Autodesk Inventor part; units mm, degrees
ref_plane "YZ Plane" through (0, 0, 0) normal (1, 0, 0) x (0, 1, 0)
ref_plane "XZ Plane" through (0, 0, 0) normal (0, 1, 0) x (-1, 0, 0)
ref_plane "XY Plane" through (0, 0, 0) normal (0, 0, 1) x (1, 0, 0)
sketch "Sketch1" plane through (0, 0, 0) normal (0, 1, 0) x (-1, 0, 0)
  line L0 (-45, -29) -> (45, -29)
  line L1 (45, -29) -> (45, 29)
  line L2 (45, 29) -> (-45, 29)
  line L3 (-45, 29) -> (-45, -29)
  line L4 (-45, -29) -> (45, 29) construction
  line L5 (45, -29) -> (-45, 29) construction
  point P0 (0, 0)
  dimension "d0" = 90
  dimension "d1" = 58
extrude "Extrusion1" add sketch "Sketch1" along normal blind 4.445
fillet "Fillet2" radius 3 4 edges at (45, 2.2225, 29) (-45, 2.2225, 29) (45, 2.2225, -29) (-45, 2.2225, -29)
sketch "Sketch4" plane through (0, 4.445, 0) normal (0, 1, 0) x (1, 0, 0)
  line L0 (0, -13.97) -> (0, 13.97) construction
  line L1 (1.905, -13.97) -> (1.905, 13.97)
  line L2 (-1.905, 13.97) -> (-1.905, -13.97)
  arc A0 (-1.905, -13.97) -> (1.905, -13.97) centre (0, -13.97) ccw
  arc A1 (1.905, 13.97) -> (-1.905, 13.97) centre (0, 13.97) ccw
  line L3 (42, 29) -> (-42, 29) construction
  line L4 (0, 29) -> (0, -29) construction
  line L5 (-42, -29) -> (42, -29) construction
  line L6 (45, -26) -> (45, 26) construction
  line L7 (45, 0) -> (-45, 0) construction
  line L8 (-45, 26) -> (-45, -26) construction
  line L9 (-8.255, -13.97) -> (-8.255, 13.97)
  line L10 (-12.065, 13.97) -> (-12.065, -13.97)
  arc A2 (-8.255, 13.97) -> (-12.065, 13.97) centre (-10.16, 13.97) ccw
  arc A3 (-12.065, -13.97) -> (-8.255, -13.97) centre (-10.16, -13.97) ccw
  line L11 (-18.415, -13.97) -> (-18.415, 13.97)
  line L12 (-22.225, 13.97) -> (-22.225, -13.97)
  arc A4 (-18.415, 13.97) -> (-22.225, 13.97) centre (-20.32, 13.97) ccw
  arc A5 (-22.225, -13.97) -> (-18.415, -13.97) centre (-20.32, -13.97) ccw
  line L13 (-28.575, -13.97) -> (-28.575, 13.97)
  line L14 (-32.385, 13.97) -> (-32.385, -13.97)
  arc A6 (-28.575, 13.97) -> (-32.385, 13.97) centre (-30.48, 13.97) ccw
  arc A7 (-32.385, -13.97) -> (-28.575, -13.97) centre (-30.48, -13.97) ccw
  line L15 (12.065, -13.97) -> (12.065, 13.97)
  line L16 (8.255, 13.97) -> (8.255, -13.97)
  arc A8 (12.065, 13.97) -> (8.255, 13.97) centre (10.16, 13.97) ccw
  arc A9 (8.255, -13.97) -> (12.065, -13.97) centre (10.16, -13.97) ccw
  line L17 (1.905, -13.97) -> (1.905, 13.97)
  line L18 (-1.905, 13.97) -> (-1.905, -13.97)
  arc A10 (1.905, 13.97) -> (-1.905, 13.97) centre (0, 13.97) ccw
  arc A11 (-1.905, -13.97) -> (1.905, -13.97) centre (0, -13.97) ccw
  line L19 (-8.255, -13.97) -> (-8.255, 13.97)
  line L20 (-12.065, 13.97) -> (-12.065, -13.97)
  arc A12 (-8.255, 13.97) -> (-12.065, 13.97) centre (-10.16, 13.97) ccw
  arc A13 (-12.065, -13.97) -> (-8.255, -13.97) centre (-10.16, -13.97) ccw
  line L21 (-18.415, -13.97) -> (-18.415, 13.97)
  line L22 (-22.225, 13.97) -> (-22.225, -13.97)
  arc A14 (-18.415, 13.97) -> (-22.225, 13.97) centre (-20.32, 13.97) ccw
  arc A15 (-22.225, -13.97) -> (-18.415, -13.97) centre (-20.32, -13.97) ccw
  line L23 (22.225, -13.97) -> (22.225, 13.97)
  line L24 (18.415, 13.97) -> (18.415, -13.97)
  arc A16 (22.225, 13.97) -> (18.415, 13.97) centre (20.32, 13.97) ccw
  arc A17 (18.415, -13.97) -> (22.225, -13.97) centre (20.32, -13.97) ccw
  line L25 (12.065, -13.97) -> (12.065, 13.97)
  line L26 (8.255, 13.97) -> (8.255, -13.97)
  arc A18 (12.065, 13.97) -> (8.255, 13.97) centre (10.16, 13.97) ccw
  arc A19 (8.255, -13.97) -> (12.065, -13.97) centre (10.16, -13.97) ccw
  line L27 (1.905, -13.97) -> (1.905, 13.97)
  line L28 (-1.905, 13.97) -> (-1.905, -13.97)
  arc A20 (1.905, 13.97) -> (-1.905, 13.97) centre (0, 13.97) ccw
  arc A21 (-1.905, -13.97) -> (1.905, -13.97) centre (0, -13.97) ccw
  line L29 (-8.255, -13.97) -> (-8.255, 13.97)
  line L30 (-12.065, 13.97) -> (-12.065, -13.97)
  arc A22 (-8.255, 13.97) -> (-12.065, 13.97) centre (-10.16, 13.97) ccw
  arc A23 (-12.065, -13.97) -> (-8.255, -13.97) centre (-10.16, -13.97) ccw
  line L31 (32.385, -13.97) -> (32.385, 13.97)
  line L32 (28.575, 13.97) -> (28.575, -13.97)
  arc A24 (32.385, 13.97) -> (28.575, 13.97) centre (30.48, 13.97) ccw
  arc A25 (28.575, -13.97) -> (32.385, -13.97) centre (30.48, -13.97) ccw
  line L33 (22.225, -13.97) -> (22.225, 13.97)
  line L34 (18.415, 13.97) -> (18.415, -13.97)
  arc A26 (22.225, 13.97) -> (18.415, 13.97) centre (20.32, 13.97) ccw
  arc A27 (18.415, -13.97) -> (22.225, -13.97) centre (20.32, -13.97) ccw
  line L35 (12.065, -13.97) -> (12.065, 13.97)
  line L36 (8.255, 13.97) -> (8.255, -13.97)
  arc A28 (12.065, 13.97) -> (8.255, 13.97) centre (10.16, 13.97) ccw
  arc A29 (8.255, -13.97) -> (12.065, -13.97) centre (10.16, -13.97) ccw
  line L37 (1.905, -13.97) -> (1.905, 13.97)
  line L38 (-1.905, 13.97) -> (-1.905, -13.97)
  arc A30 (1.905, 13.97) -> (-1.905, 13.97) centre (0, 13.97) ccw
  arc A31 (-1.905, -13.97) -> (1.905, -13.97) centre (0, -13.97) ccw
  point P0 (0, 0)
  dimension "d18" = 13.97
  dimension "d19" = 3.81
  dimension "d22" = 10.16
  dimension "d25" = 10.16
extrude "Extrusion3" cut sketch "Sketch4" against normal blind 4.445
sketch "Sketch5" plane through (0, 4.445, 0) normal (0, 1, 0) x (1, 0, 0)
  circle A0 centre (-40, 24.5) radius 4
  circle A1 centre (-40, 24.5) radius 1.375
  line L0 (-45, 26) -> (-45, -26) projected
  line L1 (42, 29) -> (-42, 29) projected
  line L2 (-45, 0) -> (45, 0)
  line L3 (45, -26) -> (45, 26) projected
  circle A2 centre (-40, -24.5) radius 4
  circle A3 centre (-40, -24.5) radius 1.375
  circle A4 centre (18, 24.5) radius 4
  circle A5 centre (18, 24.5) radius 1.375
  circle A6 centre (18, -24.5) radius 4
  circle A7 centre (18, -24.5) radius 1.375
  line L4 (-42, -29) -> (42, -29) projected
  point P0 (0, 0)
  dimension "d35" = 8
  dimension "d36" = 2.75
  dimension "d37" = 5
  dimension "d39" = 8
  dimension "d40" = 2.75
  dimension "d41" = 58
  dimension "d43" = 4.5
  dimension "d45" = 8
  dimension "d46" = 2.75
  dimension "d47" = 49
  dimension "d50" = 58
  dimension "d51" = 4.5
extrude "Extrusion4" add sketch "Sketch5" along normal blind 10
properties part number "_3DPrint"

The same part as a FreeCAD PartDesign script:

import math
import FreeCAD as App
import Part
import Sketcher
from FreeCAD import Vector
Q = App.Units.Quantity


def edges_at(feature, points):
    """Names of the edges that pass closest to the given points."""
    edges = feature.Shape.Edges
    near = lambda p: min(range(len(edges)), key=lambda i: edges[i].distToShape(Part.Vertex(*p))[0])
    return sorted({f"Edge{near(p) + 1}" for p in points})


def add_polygon(sketch, points):
    """Adds a closed chain of lines whose ends are joined by coincident constraints."""
    first, n = sketch.GeometryCount, len(points)
    for a, b in zip(points, points[1:] + points[:1]):
        sketch.addGeometry(Part.LineSegment(App.Vector(*a, 0), App.Vector(*b, 0)), False)
    for i in range(n):
        sketch.addConstraint(Sketcher.Constraint("Coincident", first + i, 2, first + (i + 1) % n, 1))

doc = App.newDocument("Part")
params = doc.addObject("Spreadsheet::Sheet", "Params")
for row, (alias, value) in enumerate([
    ("pad1_length", "0.175 in"),
    ("fillet_radius", "0.1181102 in"),
    ("sketch2_radius", "0.075 in"),
    ("pocket1_length", "0.175 in"),
    ("pad2_length", "0.3937008 in"),
], start=1):
    params.set(f"A{row}", alias)
    params.set(f"B{row}", "=" + value)
    params.setAlias(f"B{row}", alias)

body = doc.addObject("PartDesign::Body", "Body")

# Sketch on XZ plane
sketch1 = doc.addObject("Sketcher::SketchObject", "Sketch")
body.addObject(sketch1)
sketch1.AttachmentSupport = (doc.XZ_Plane, [""])
sketch1.MapMode = "FlatFace"
add_polygon(sketch1, [(45, 29), (45, -29), (-45, -29), (-45, 29)])  # lines 0-3
sketch1.addConstraint([
    Sketcher.Constraint("Vertical", 0),
    Sketcher.Constraint("Horizontal", 1),
    Sketcher.Constraint("Vertical", 2),
    Sketcher.Constraint("Horizontal", 3),
    Sketcher.Constraint("Symmetric", 0, 2, 2, 2, -1, 1),
    Sketcher.Constraint("DistanceX", 1, 2, 1, 1, Q("3.5433 in")),
    Sketcher.Constraint("DistanceY", 0, 2, 0, 1, Q("58 mm")),
])
pad1 = doc.addObject("PartDesign::Pad", "Pad")
body.addObject(pad1)
pad1.Profile = sketch1
pad1.setExpression("Length", "Params.pad1_length")
pad1.Reversed = True
doc.recompute()

fillet = doc.addObject("PartDesign::Fillet", "Fillet")
body.addObject(fillet)
fillet.Base = (pad1, edges_at(pad1, [
    (45, 2.223, 29),
    (-45, 2.223, 29),
    (45, 2.223, -29),
    (-45, 2.223, -29),
]))
fillet.setExpression("Radius", "Params.fillet_radius")

# Sketch on XZ plane
sketch2 = doc.addObject("Sketcher::SketchObject", "Sketch001")
body.addObject(sketch2)
sketch2.AttachmentSupport = (doc.XZ_Plane, [""])
sketch2.MapMode = "FlatFace"
sketch2.AttachmentOffset = App.Placement(Vector(0, 0, -0.175 * 25.4), App.Rotation())
sketch2.addGeometry([
    Part.ArcOfCircle(Part.Circle(Vector(0, 14, 0), Vector(0, 0, 1), 1.9), math.radians(0), math.radians(180)),  # 0
    Part.LineSegment(Vector(1.9, 14, 0), Vector(1.9, -14, 0)),  # 1
    Part.ArcOfCircle(Part.Circle(Vector(0, -14, 0), Vector(0, 0, 1), 1.9), math.radians(180), math.radians(360)),  # 2
    Part.LineSegment(Vector(-1.9, -14, 0), Vector(-1.9, 14, 0)),  # 3
    Part.ArcOfCircle(Part.Circle(Vector(-10.2, 14, 0), Vector(0, 0, 1), 1.9), math.radians(0), math.radians(180)),  # 4
    Part.LineSegment(Vector(-8.3, 14, 0), Vector(-8.3, -14, 0)),  # 5
    Part.ArcOfCircle(Part.Circle(Vector(-10.2, -14, 0), Vector(0, 0, 1), 1.9), math.radians(180), math.radians(360)),  # 6
    Part.LineSegment(Vector(-12.1, -14, 0), Vector(-12.1, 14, 0)),  # 7
    Part.ArcOfCircle(Part.Circle(Vector(-20.3, 14, 0), Vector(0, 0, 1), 1.9), math.radians(0), math.radians(180)),  # 8
    Part.LineSegment(Vector(-18.4, 14, 0), Vector(-18.4, -14, 0)),  # 9
    Part.ArcOfCircle(Part.Circle(Vector(-20.3, -14, 0), Vector(0, 0, 1), 1.9), math.radians(180), math.radians(360)),  # 10
    Part.LineSegment(Vector(-22.2, -14, 0), Vector(-22.2, 14, 0)),  # 11
    Part.ArcOfCircle(Part.Circle(Vector(-30.5, 14, 0), Vector(0, 0, 1), 1.9), math.radians(0), math.radians(180)),  # 12
    Part.LineSegment(Vector(-28.6, 14, 0), Vector(-28.6, -14, 0)),  # 13
    Part.ArcOfCircle(Part.Circle(Vector(-30.5, -14, 0), Vector(0, 0, 1), 1.9), math.radians(180), math.radians(360)),  # 14
    Part.LineSegment(Vector(-32.4, -14, 0), Vector(-32.4, 14, 0)),  # 15
    Part.ArcOfCircle(Part.Circle(Vector(10.2, 14, 0), Vector(0, 0, 1), 1.9), math.radians(0), math.radians(180)),  # 16
    Part.LineSegment(Vector(12.1, 14, 0), Vector(12.1, -14, 0)),  # 17
    Part.ArcOfCircle(Part.Circle(Vector(10.2, -14, 0), Vector(0, 0, 1), 1.9), math.radians(180), math.radians(360)),  # 18
    Part.LineSegment(Vector(8.3, -14, 0), Vector(8.3, 14, 0)),  # 19
    Part.ArcOfCircle(Part.Circle(Vector(20.3, 14, 0), Vector(0, 0, 1), 1.9), math.radians(0), math.radians(180)),  # 20
    Part.LineSegment(Vector(22.2, 14, 0), Vector(22.2, -14, 0)),  # 21
    Part.ArcOfCircle(Part.Circle(Vector(20.3, -14, 0), Vector(0, 0, 1), 1.9), math.radians(180), math.radians(360)),  # 22
    Part.LineSegment(Vector(18.4, -14, 0), Vector(18.4, 14, 0)),  # 23
    Part.ArcOfCircle(Part.Circle(Vector(30.5, 14, 0), Vector(0, 0, 1), 1.9), math.radians(0), math.radians(180)),  # 24
    Part.LineSegment(Vector(32.4, 14, 0), Vector(32.4, -14, 0)),  # 25
    Part.ArcOfCircle(Part.Circle(Vector(30.5, -14, 0), Vector(0, 0, 1), 1.9), math.radians(180), math.radians(360)),  # 26
    Part.LineSegment(Vector(28.6, -14, 0), Vector(28.6, 14, 0)),  # 27
], False)
sketch2.addConstraint([
    Sketcher.Constraint("Tangent", 0, 1, 1, 1),
    Sketcher.Constraint("Tangent", 1, 2, 2, 2),
    Sketcher.Constraint("Tangent", 2, 1, 3, 1),
    Sketcher.Constraint("Tangent", 3, 2, 0, 2),
    Sketcher.Constraint("Tangent", 4, 1, 5, 1),
    Sketcher.Constraint("Tangent", 5, 2, 6, 2),
    Sketcher.Constraint("Tangent", 6, 1, 7, 1),
    Sketcher.Constraint("Tangent", 7, 2, 4, 2),
    Sketcher.Constraint("Tangent", 8, 1, 9, 1),
    Sketcher.Constraint("Tangent", 9, 2, 10, 2),
    Sketcher.Constraint("Tangent", 10, 1, 11, 1),
    Sketcher.Constraint("Tangent", 11, 2, 8, 2),
    Sketcher.Constraint("Tangent", 12, 1, 13, 1),
    Sketcher.Constraint("Tangent", 13, 2, 14, 2),
    Sketcher.Constraint("Tangent", 14, 1, 15, 1),
    Sketcher.Constraint("Tangent", 15, 2, 12, 2),
    Sketcher.Constraint("Tangent", 16, 1, 17, 1),
    Sketcher.Constraint("Tangent", 17, 2, 18, 2),
    Sketcher.Constraint("Tangent", 18, 1, 19, 1),
    Sketcher.Constraint("Tangent", 19, 2, 16, 2),
    Sketcher.Constraint("Tangent", 20, 1, 21, 1),
    Sketcher.Constraint("Tangent", 21, 2, 22, 2),
    Sketcher.Constraint("Tangent", 22, 1, 23, 1),
    Sketcher.Constraint("Tangent", 23, 2, 20, 2),
    Sketcher.Constraint("Tangent", 24, 1, 25, 1),
    Sketcher.Constraint("Tangent", 25, 2, 26, 2),
    Sketcher.Constraint("Tangent", 26, 1, 27, 1),
    Sketcher.Constraint("Tangent", 27, 2, 24, 2),
    Sketcher.Constraint("Vertical", 1),
    Sketcher.Constraint("Vertical", 3),
    Sketcher.Constraint("Vertical", 5),
    Sketcher.Constraint("Vertical", 7),
    Sketcher.Constraint("Vertical", 9),
    Sketcher.Constraint("Vertical", 11),
    Sketcher.Constraint("Vertical", 13),
    Sketcher.Constraint("Vertical", 15),
    Sketcher.Constraint("Vertical", 17),
    Sketcher.Constraint("Vertical", 19),
    Sketcher.Constraint("Vertical", 21),
    Sketcher.Constraint("Vertical", 23),
    Sketcher.Constraint("Vertical", 25),
    Sketcher.Constraint("Vertical", 27),
    Sketcher.Constraint("Equal", 2, 4),
    Sketcher.Constraint("Equal", 6, 8),
    Sketcher.Constraint("Equal", 10, 12),
    Sketcher.Constraint("Equal", 14, 16),
    Sketcher.Constraint("Equal", 18, 20),
    Sketcher.Constraint("Equal", 22, 24),
    Sketcher.Constraint("Symmetric", 0, 3, 2, 3, -1, 1),
    Sketcher.Constraint("Symmetric", 6, 3, 16, 3, -1, 1),
    Sketcher.Constraint("Symmetric", 10, 3, 20, 3, -1, 1),
    Sketcher.Constraint("Symmetric", 14, 3, 24, 3, -1, 1),
    Sketcher.Constraint("Horizontal", 0, 3, 4, 3),
    Sketcher.Constraint("Horizontal", 2, 3, 6, 3),
    Sketcher.Constraint("Horizontal", 4, 3, 8, 3),
    Sketcher.Constraint("Horizontal", 6, 3, 10, 3),
    Sketcher.Constraint("Horizontal", 8, 3, 12, 3),
    Sketcher.Constraint("Horizontal", 10, 3, 14, 3),
    Sketcher.Constraint("Horizontal", 14, 3, 18, 3),
    Sketcher.Constraint("Horizontal", 18, 3, 22, 3),
    Sketcher.Constraint("Horizontal", 22, 3, 26, 3),
    Sketcher.Constraint("Radius", 0, Q("0.075 in")),
    Sketcher.Constraint("DistanceX", 4, 3, -1, 1, Q("0.4 in")),
    Sketcher.Constraint("DistanceX", 8, 3, 4, 3, Q("0.4 in")),
    Sketcher.Constraint("DistanceX", 12, 3, 8, 3, Q("0.4 in")),
    Sketcher.Constraint("DistanceY", -1, 1, 0, 3, Q("0.55 in")),
])
sketch2.setExpression("Constraints[61]", "Params.sketch2_radius")
pocket1 = doc.addObject("PartDesign::Pocket", "Pocket")
body.addObject(pocket1)
pocket1.Profile = sketch2
pocket1.setExpression("Length", "Params.pocket1_length")
pocket1.Reversed = True

# Sketch on XZ plane
sketch3 = doc.addObject("Sketcher::SketchObject", "Sketch002")
body.addObject(sketch3)
sketch3.AttachmentSupport = (doc.XZ_Plane, [""])
sketch3.MapMode = "FlatFace"
sketch3.AttachmentOffset = App.Placement(Vector(0, 0, -0.175 * 25.4), App.Rotation())
sketch3.addGeometry([
    Part.Circle(Vector(-40, -24.5, 0), Vector(0, 0, 1), 4),  # 0
    Part.Circle(Vector(-40, -24.5, 0), Vector(0, 0, 1), 1.4),  # 1
    Part.Circle(Vector(-40, 24.5, 0), Vector(0, 0, 1), 4),  # 2
    Part.Circle(Vector(-40, 24.5, 0), Vector(0, 0, 1), 1.4),  # 3
    Part.Circle(Vector(18, -24.5, 0), Vector(0, 0, 1), 4),  # 4
    Part.Circle(Vector(18, -24.5, 0), Vector(0, 0, 1), 1.4),  # 5
    Part.Circle(Vector(18, 24.5, 0), Vector(0, 0, 1), 4),  # 6
    Part.Circle(Vector(18, 24.5, 0), Vector(0, 0, 1), 1.4),  # 7
], False)
sketch3.addConstraint([
    Sketcher.Constraint("Coincident", 1, 3, 0, 3),
    Sketcher.Constraint("Coincident", 3, 3, 2, 3),
    Sketcher.Constraint("Coincident", 5, 3, 4, 3),
    Sketcher.Constraint("Coincident", 7, 3, 6, 3),
    Sketcher.Constraint("Equal", 0, 2),
    Sketcher.Constraint("Equal", 1, 3),
    Sketcher.Constraint("Equal", 2, 4),
    Sketcher.Constraint("Equal", 3, 5),
    Sketcher.Constraint("Equal", 4, 6),
    Sketcher.Constraint("Equal", 5, 7),
    Sketcher.Constraint("Symmetric", 0, 3, 2, 3, -1),
    Sketcher.Constraint("Symmetric", 4, 3, 6, 3, -1),
    Sketcher.Constraint("Horizontal", 1, 3, 4, 3),
    Sketcher.Constraint("Diameter", 0, Q("8 mm")),
    Sketcher.Constraint("Diameter", 1, Q("2.75 mm")),
    Sketcher.Constraint("DistanceY", 0, 3, 2, 3, Q("49 mm")),
    Sketcher.Constraint("DistanceX", 0, 3, 4, 3, Q("58 mm")),
    Sketcher.Constraint("DistanceX", 0, 3, -1, 1, Q("1.5748 in")),
])
pad2 = doc.addObject("PartDesign::Pad", "Pad001")
body.addObject(pad2)
pad2.Profile = sketch3
pad2.setExpression("Length", "Params.pad2_length")
pad2.Reversed = True

doc.recompute()
